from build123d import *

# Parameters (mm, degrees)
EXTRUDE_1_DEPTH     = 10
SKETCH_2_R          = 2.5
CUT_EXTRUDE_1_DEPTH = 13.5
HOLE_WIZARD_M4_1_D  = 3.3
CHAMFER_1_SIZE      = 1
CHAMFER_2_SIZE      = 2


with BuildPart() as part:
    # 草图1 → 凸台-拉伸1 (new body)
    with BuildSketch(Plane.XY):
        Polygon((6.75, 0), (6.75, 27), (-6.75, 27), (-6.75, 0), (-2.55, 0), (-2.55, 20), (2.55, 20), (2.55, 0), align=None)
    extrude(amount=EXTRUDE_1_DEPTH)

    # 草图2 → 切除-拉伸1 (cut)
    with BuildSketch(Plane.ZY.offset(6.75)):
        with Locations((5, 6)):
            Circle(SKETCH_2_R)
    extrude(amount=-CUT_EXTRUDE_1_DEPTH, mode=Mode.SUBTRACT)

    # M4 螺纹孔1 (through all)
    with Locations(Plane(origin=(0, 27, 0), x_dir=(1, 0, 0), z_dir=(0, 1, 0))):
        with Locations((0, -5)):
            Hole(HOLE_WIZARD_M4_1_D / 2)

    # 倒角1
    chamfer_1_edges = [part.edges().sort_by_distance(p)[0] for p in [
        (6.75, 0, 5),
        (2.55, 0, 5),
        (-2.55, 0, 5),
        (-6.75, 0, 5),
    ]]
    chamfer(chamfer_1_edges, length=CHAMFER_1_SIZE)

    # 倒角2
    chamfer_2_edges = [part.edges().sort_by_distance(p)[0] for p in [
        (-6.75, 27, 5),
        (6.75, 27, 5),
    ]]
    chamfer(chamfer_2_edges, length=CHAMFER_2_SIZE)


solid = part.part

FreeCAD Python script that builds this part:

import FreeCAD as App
import Part
import Sketcher
from FreeCAD import Vector


def edges_at(feature, points):
    """Names of the edges that pass closest to the given points."""
    edges = feature.Shape.Edges
    near = lambda p: min(range(len(edges)), key=lambda i: edges[i].distToShape(Part.Vertex(*p))[0])
    return sorted({f"Edge{near(p) + 1}" for p in points})


def add_polygon(sketch, points):
    """Adds a closed chain of lines whose ends are joined by coincident constraints."""
    first, n = sketch.GeometryCount, len(points)
    for a, b in zip(points, points[1:] + points[:1]):
        sketch.addGeometry(Part.LineSegment(App.Vector(*a, 0), App.Vector(*b, 0)), False)
    for i in range(n):
        sketch.addConstraint(Sketcher.Constraint("Coincident", first + i, 2, first + (i + 1) % n, 1))

doc = App.newDocument("Part")
params = doc.addObject("Spreadsheet::Sheet", "Params")
for row, (alias, value) in enumerate([
    ("sketch1_height", "27 mm"),
    ("sketch1_height2", "20 mm"),
    ("sketch1_width", "13.5 mm"),
    ("sketch1_width2", "4.2 mm"),
    ("pad1_length", "10 mm"),
    ("sketch2_diameter", "5 mm"),
    ("pocket1_length", "13.5 mm"),
    ("sketch3_diameter", "3.3 mm"),
    ("hole_diameter", "3.3 mm"),
    ("chamfer_size", "1 mm"),
    ("chamfer2_size", "2 mm"),
], start=1):
    params.set(f"A{row}", alias)
    params.set(f"B{row}", "=" + value)
    params.setAlias(f"B{row}", alias)

body = doc.addObject("PartDesign::Body", "Body")

sketch1 = body.newObject("Sketcher::SketchObject", "Sketch")
sketch1.AttachmentSupport = (doc.getObject("XY_Plane"), [""])
sketch1.MapMode = "FlatFace"
add_polygon(sketch1, [(6.75, 0), (6.75, 27), (-6.75, 27), (-6.75, 0), (-2.55, 0), (-2.55, 20), (2.55, 20), (2.55, 0)])
sketch1.addConstraint([
    Sketcher.Constraint("Vertical", 0),
    Sketcher.Constraint("Horizontal", 1),
    Sketcher.Constraint("Vertical", 2),
    Sketcher.Constraint("Horizontal", 3),
    Sketcher.Constraint("Vertical", 4),
    Sketcher.Constraint("Horizontal", 5),
    Sketcher.Constraint("Vertical", 6),
    Sketcher.Constraint("Horizontal", 7),
    Sketcher.Constraint("Symmetric", 3, 2, 6, 2, -1, 1),
    Sketcher.Constraint("Symmetric", 2, 2, 7, 2, -2),
    Sketcher.Constraint("DistanceY", 0, 1, 0, 2, 27.0),
    Sketcher.Constraint("DistanceY", 4, 1, 4, 2, 20.0),
    Sketcher.Constraint("DistanceX", 1, 2, 1, 1, 13.5),
    Sketcher.Constraint("DistanceX", 3, 1, 3, 2, 4.2),
])
sketch1.setExpression("Constraints[18]", "Params.sketch1_height")
sketch1.setExpression("Constraints[19]", "Params.sketch1_height2")
sketch1.setExpression("Constraints[20]", "Params.sketch1_width")
sketch1.setExpression("Constraints[21]", "Params.sketch1_width2")
pad1 = body.newObject("PartDesign::Pad", "Pad")
pad1.Profile = sketch1
pad1.setExpression("Length", "Params.pad1_length")

sketch2 = body.newObject("Sketcher::SketchObject", "Sketch001")
sketch2.AttachmentSupport = (doc.getObject("YZ_Plane"), [""])
sketch2.MapMode = "FlatFace"
sketch2.AttachmentOffset = App.Placement(Vector(0, 0, -6.75), App.Rotation())
sketch2.addGeometry(Part.Circle(Vector(6, 5, 0), Vector(0, 0, 1), 2.5), False)
sketch2.addConstraint([
    Sketcher.Constraint("Diameter", 0, 5.0),
    Sketcher.Constraint("DistanceX", -1, 1, 0, 3, 6.0),
    Sketcher.Constraint("DistanceY", -1, 1, 0, 3, 5.0),
])
sketch2.setExpression("Constraints[0]", "Params.sketch2_diameter")
pocket1 = body.newObject("PartDesign::Pocket", "Pocket")
pocket1.Profile = sketch2
pocket1.setExpression("Length", "Params.pocket1_length")
pocket1.Reversed = True

sketch3 = body.newObject("Sketcher::SketchObject", "Sketch002")
sketch3.AttachmentSupport = (doc.getObject("XZ_Plane"), [""])
sketch3.MapMode = "FlatFace"
sketch3.AttachmentOffset = App.Placement(Vector(0, 0, -27), App.Rotation())
sketch3.addGeometry(Part.Circle(Vector(0, 5, 0), Vector(0, 0, 1), 1.65), False)
sketch3.addConstraint([
    Sketcher.Constraint("PointOnObject", 0, 3, -2),
    Sketcher.Constraint("Diameter", 0, 3.3),
    Sketcher.Constraint("DistanceY", -1, 1, 0, 3, 5.0),
])
sketch3.setExpression("Constraints[1]", "Params.sketch3_diameter")
doc.recompute()
hole = body.newObject("PartDesign::Hole", "Hole")
hole.Profile = sketch3
hole.ThreadType = "None"
hole.setExpression("Diameter", "Params.hole_diameter")
hole.DepthType = "ThroughAll"
hole.Reversed = True
doc.recompute()

chamfer = body.newObject("PartDesign::Chamfer", "Chamfer")
chamfer.Base = (hole, edges_at(hole, [
    (6.75, 0, 5),
    (2.55, 0, 5),
    (-2.55, 0, 5),
    (-6.75, 0, 5),
]))
chamfer.setExpression("Size", "Params.chamfer_size")
doc.recompute()

chamfer2 = body.newObject("PartDesign::Chamfer", "Chamfer001")
chamfer2.Base = (chamfer, edges_at(chamfer, [(-6.75, 27, 5), (6.75, 27, 5)]))
chamfer2.setExpression("Size", "Params.chamfer2_size")

doc.recompute()
